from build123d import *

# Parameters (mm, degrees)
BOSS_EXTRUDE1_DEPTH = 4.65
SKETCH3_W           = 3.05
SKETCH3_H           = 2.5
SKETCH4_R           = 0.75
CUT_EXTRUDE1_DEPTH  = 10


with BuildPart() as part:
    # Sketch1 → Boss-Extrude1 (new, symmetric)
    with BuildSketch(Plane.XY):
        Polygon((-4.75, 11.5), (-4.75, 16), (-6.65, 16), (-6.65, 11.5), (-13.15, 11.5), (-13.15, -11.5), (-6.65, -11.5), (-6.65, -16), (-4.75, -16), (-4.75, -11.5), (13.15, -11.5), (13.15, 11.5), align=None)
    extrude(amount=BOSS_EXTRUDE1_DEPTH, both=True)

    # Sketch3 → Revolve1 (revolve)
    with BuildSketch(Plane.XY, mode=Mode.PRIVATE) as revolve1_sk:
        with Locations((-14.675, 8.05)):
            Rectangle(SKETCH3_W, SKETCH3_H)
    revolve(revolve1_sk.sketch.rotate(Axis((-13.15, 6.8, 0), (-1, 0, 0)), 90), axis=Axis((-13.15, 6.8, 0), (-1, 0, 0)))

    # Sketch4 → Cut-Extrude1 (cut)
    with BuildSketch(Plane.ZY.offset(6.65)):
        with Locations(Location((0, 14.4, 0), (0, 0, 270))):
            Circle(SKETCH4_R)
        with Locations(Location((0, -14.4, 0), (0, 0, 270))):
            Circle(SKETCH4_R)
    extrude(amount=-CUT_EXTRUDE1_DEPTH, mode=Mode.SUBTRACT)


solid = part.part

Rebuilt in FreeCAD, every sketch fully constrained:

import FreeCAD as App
import Part
import Sketcher

V = App.Vector

doc = App.newDocument("Part")
body = doc.addObject("PartDesign::Body", "Body")

sketch1 = body.newObject("Sketcher::SketchObject", "Sketch")
sketch1.AttachmentSupport = (doc.getObject("XY_Plane"), [""])
sketch1.MapMode = "FlatFace"
sketch1.addGeometry(Part.LineSegment(V(-4.75, 11.5, 0), V(-4.75, 16, 0)), False)
sketch1.addGeometry(Part.LineSegment(V(-4.75, 16, 0), V(-6.65, 16, 0)), False)
sketch1.addGeometry(Part.LineSegment(V(-6.65, 16, 0), V(-6.65, 11.5, 0)), False)
sketch1.addGeometry(Part.LineSegment(V(-6.65, 11.5, 0), V(-13.15, 11.5, 0)), False)
sketch1.addGeometry(Part.LineSegment(V(-13.15, 11.5, 0), V(-13.15, -11.5, 0)), False)
sketch1.addGeometry(Part.LineSegment(V(-13.15, -11.5, 0), V(-6.65, -11.5, 0)), False)
sketch1.addGeometry(Part.LineSegment(V(-6.65, -11.5, 0), V(-6.65, -16, 0)), False)
sketch1.addGeometry(Part.LineSegment(V(-6.65, -16, 0), V(-4.75, -16, 0)), False)
sketch1.addGeometry(Part.LineSegment(V(-4.75, -16, 0), V(-4.75, -11.5, 0)), False)
sketch1.addGeometry(Part.LineSegment(V(-4.75, -11.5, 0), V(13.15, -11.5, 0)), False)
sketch1.addGeometry(Part.LineSegment(V(13.15, -11.5, 0), V(13.15, 11.5, 0)), False)
sketch1.addGeometry(Part.LineSegment(V(13.15, 11.5, 0), V(-4.75, 11.5, 0)), False)
sketch1.addConstraint(Sketcher.Constraint("Coincident", 0, 2, 1, 1))
sketch1.addConstraint(Sketcher.Constraint("Coincident", 1, 2, 2, 1))
sketch1.addConstraint(Sketcher.Constraint("Coincident", 2, 2, 3, 1))
sketch1.addConstraint(Sketcher.Constraint("Coincident", 3, 2, 4, 1))
sketch1.addConstraint(Sketcher.Constraint("Coincident", 4, 2, 5, 1))
sketch1.addConstraint(Sketcher.Constraint("Coincident", 5, 2, 6, 1))
sketch1.addConstraint(Sketcher.Constraint("Coincident", 6, 2, 7, 1))
sketch1.addConstraint(Sketcher.Constraint("Coincident", 7, 2, 8, 1))
sketch1.addConstraint(Sketcher.Constraint("Coincident", 8, 2, 9, 1))
sketch1.addConstraint(Sketcher.Constraint("Coincident", 9, 2, 10, 1))
sketch1.addConstraint(Sketcher.Constraint("Coincident", 10, 2, 11, 1))
sketch1.addConstraint(Sketcher.Constraint("Coincident", 11, 2, 0, 1))
sketch1.addConstraint(Sketcher.Constraint("Vertical", 0))
sketch1.addConstraint(Sketcher.Constraint("Horizontal", 1))
sketch1.addConstraint(Sketcher.Constraint("Vertical", 2))
sketch1.addConstraint(Sketcher.Constraint("Horizontal", 3))
sketch1.addConstraint(Sketcher.Constraint("Vertical", 4))
sketch1.addConstraint(Sketcher.Constraint("Horizontal", 5))
sketch1.addConstraint(Sketcher.Constraint("Vertical", 6))
sketch1.addConstraint(Sketcher.Constraint("Horizontal", 7))
sketch1.addConstraint(Sketcher.Constraint("Vertical", 8))
sketch1.addConstraint(Sketcher.Constraint("Horizontal", 9))
sketch1.addConstraint(Sketcher.Constraint("Vertical", 10))
sketch1.addConstraint(Sketcher.Constraint("Horizontal", 11))
sketch1.addConstraint(Sketcher.Constraint("Symmetric", 3, 2, 9, 2, -1, 1))
sketch1.addConstraint(Sketcher.Constraint("Symmetric", 2, 2, 5, 2, -1))
sketch1.addConstraint(Sketcher.Constraint("Symmetric", 0, 2, 7, 2, -1))
sketch1.addConstraint(Sketcher.Constraint("Horizontal", 3, 2, 10, 2))
sketch1.addConstraint(Sketcher.Constraint("DistanceY", 4, 2, 4, 1, 23.0))
sketch1.addConstraint(Sketcher.Constraint("DistanceX", 1, 2, 1, 1, 1.9))
sketch1.addConstraint(Sketcher.Constraint("DistanceX", 3, 2, 3, 1, 6.5))
sketch1.addConstraint(Sketcher.Constraint("DistanceX", 9, 1, 9, 2, 17.9))
sketch1.addConstraint(Sketcher.Constraint("DistanceY", 0, 1, 0, 2, 4.5))
pad1 = body.newObject("PartDesign::Pad", "Pad")
pad1.Profile = sketch1
pad1.Length = 9.3
pad1.Midplane = True

sketch2 = body.newObject("Sketcher::SketchObject", "Sketch001")
sketch2.AttachmentSupport = (doc.getObject("XY_Plane"), [""])
sketch2.MapMode = "FlatFace"
sketch2.addGeometry(Part.LineSegment(V(-16.2, 9.3, 0), V(-16.2, 6.8, 0)), False)
sketch2.addGeometry(Part.LineSegment(V(-16.2, 6.8, 0), V(-13.15, 6.8, 0)), False)
sketch2.addGeometry(Part.LineSegment(V(-13.15, 6.8, 0), V(-13.15, 9.3, 0)), False)
sketch2.addGeometry(Part.LineSegment(V(-13.15, 9.3, 0), V(-16.2, 9.3, 0)), False)
sketch2.addGeometry(Part.LineSegment(V(-13.15, 6.8, 0), V(-16.2, 6.8, 0)), True)
sketch2.addConstraint(Sketcher.Constraint("Coincident", 0, 2, 1, 1))
sketch2.addConstraint(Sketcher.Constraint("Coincident", 1, 2, 2, 1))
sketch2.addConstraint(Sketcher.Constraint("Coincident", 2, 2, 3, 1))
sketch2.addConstraint(Sketcher.Constraint("Coincident", 3, 2, 0, 1))
sketch2.addConstraint(Sketcher.Constraint("Vertical", 0))
sketch2.addConstraint(Sketcher.Constraint("Horizontal", 1))
sketch2.addConstraint(Sketcher.Constraint("Vertical", 2))
sketch2.addConstraint(Sketcher.Constraint("Horizontal", 3))
sketch2.addConstraint(Sketcher.Constraint("Horizontal", 4))
sketch2.addConstraint(Sketcher.Constraint("Coincident", 4, 1, 1, 2))
sketch2.addConstraint(Sketcher.Constraint("Vertical", 3, 2, 4, 2))
sketch2.addConstraint(Sketcher.Constraint("DistanceY", 0, 2, 0, 1, 2.5))
sketch2.addConstraint(Sketcher.Constraint("DistanceX", 1, 1, 1, 2, 3.05))
sketch2.addConstraint(Sketcher.Constraint("DistanceX", 0, 2, -1, 1, 16.2))
sketch2.addConstraint(Sketcher.Constraint("DistanceY", -1, 1, 0, 2, 6.8))
revolution = body.newObject("PartDesign::Revolution", "Revolution")
revolution.Profile = sketch2
revolution.ReferenceAxis = (sketch2, ["Axis0"])
revolution.Angle = 360

sketch3 = body.newObject("Sketcher::SketchObject", "Sketch002")
sketch3.AttachmentSupport = (doc.getObject("YZ_Plane"), [""])
sketch3.MapMode = "FlatFace"
sketch3.AttachmentOffset = App.Placement(V(0, 0, -6.65), App.Rotation())
sketch3.addGeometry(Part.Circle(V(14.4, 0, 0), V(0, 0, 1), 0.75), False)
sketch3.addGeometry(Part.Circle(V(-14.4, 0, 0), V(0, 0, 1), 0.75), False)
sketch3.addConstraint(Sketcher.Constraint("Equal", 0, 1))
sketch3.addConstraint(Sketcher.Constraint("Symmetric", 0, 3, 1, 3, -1, 1))
sketch3.addConstraint(Sketcher.Constraint("PointOnObject", 0, 3, -1))
sketch3.addConstraint(Sketcher.Constraint("Diameter", 0, 1.5))
sketch3.addConstraint(Sketcher.Constraint("DistanceX", -1, 1, 0, 3, 14.4))
pocket1 = body.newObject("PartDesign::Pocket", "Pocket")
pocket1.Profile = sketch3
pocket1.Length = 10
pocket1.Reversed = True

doc.recompute()
